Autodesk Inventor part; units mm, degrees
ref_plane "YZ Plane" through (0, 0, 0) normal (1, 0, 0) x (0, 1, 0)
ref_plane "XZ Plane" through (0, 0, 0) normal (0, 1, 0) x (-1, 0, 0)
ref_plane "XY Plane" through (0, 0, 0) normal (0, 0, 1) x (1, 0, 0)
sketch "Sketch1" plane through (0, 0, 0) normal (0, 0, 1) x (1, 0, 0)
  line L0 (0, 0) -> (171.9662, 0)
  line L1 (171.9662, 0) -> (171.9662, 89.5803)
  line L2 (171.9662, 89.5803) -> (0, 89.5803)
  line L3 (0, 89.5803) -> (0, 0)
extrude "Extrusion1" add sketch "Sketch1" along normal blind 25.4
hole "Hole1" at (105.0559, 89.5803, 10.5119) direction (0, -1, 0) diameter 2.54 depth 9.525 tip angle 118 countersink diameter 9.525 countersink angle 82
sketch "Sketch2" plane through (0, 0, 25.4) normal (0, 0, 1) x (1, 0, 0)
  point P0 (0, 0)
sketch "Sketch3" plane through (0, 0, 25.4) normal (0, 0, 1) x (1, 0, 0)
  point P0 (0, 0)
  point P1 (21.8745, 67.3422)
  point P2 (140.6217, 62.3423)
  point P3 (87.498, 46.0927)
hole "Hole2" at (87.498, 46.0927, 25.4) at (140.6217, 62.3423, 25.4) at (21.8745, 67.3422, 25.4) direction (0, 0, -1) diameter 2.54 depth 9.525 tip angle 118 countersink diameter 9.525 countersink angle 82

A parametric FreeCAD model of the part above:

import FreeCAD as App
import Part
import Sketcher

V = App.Vector
Q = App.Units.Quantity

doc = App.newDocument("Part")
body = doc.addObject("PartDesign::Body", "Body")

sketch1 = body.newObject("Sketcher::SketchObject", "Sketch")
sketch1.AttachmentSupport = (doc.getObject("XY_Plane"), [""])
sketch1.MapMode = "FlatFace"
sketch1.addGeometry([
    Part.LineSegment(V(0, 90, 0), V(0, 0, 0)),
    Part.LineSegment(V(0, 0, 0), V(172, 0, 0)),
    Part.LineSegment(V(172, 0, 0), V(172, 90, 0)),
    Part.LineSegment(V(172, 90, 0), V(0, 90, 0)),
], False)
sketch1.addConstraint([
    Sketcher.Constraint("Coincident", 0, 2, 1, 1),
    Sketcher.Constraint("Coincident", 1, 2, 2, 1),
    Sketcher.Constraint("Coincident", 2, 2, 3, 1),
    Sketcher.Constraint("Coincident", 3, 2, 0, 1),
    Sketcher.Constraint("Vertical", 0),
    Sketcher.Constraint("Horizontal", 1),
    Sketcher.Constraint("Vertical", 2),
    Sketcher.Constraint("Horizontal", 3),
    Sketcher.Constraint("Coincident", 0, 2, -1, 1),
    Sketcher.Constraint("DistanceX", 1, 1, 1, 2, 171.9662),
    Sketcher.Constraint("DistanceY", 0, 2, 0, 1, 89.5803),
])
pad1 = body.newObject("PartDesign::Pad", "Pad")
pad1.Profile = sketch1
pad1.Length = Q("1 in")

sketch2 = body.newObject("Sketcher::SketchObject", "Sketch001")
sketch2.AttachmentSupport = (doc.getObject("XZ_Plane"), [""])
sketch2.MapMode = "FlatFace"
sketch2.AttachmentOffset = App.Placement(V(0, 0, -89.5803), App.Rotation())
sketch2.addGeometry(Part.Circle(V(105.1, 10.5, 0), V(0, 0, 1), 1.3), False)
sketch2.addConstraint([
    Sketcher.Constraint("Diameter", 0, Q("0.1 in")),
    Sketcher.Constraint("DistanceX", -1, 1, 0, 3, 105.056),
    Sketcher.Constraint("DistanceY", -1, 1, 0, 3, 10.512),
])
doc.recompute()
hole = body.newObject("PartDesign::Hole", "Hole")
hole.Profile = sketch2
hole.ThreadType = "None"
hole.Diameter = Q("0.1 in")
hole.DepthType = "Dimension"
hole.Depth = Q("0.375 in")
hole.DrillPoint = "Angled"
hole.DrillPointAngle = 118
hole.HoleCutType = "Countersink"
hole.HoleCutDiameter = Q("0.375 in")
hole.HoleCutCountersinkAngle = 82
hole.Reversed = True

sketch3 = body.newObject("Sketcher::SketchObject", "Sketch002")
sketch3.AttachmentSupport = (doc.getObject("XY_Plane"), [""])
sketch3.MapMode = "FlatFace"
sketch3.AttachmentOffset = App.Placement(V(0, 0, 1 * 25.4), App.Rotation())
sketch3.addGeometry([
    Part.Circle(V(87.5, 46.1, 0), V(0, 0, 1), 1.3),
    Part.Circle(V(140.6, 62.3, 0), V(0, 0, 1), 1.3),
    Part.Circle(V(21.9, 67.3, 0), V(0, 0, 1), 1.3),
], False)
sketch3.addConstraint([
    Sketcher.Constraint("Equal", 0, 1),
    Sketcher.Constraint("Equal", 1, 2),
    Sketcher.Constraint("Diameter", 0, Q("0.1 in")),
    Sketcher.Constraint("DistanceX", -1, 1, 0, 3, Q("3.4448 in")),
    Sketcher.Constraint("DistanceX", -1, 1, 2, 3, Q("0.8612 in")),
    Sketcher.Constraint("DistanceY", 0, 3, 2, 3, Q("0.8366 in")),
    Sketcher.Constraint("DistanceY", -1, 1, 0, 3, 46.0927),
    Sketcher.Constraint("DistanceX", -1, 1, 1, 3, 140.6217),
    Sketcher.Constraint("DistanceY", -1, 1, 1, 3, 62.3423),
])
doc.recompute()
hole2 = body.newObject("PartDesign::Hole", "Hole001")
hole2.Profile = sketch3
hole2.ThreadType = "None"
hole2.Diameter = Q("0.1 in")
hole2.DepthType = "Dimension"
hole2.Depth = Q("0.375 in")
hole2.DrillPoint = "Angled"
hole2.DrillPointAngle = 118
hole2.HoleCutType = "Countersink"
hole2.HoleCutDiameter = Q("0.375 in")
hole2.HoleCutCountersinkAngle = 82

doc.recompute()
